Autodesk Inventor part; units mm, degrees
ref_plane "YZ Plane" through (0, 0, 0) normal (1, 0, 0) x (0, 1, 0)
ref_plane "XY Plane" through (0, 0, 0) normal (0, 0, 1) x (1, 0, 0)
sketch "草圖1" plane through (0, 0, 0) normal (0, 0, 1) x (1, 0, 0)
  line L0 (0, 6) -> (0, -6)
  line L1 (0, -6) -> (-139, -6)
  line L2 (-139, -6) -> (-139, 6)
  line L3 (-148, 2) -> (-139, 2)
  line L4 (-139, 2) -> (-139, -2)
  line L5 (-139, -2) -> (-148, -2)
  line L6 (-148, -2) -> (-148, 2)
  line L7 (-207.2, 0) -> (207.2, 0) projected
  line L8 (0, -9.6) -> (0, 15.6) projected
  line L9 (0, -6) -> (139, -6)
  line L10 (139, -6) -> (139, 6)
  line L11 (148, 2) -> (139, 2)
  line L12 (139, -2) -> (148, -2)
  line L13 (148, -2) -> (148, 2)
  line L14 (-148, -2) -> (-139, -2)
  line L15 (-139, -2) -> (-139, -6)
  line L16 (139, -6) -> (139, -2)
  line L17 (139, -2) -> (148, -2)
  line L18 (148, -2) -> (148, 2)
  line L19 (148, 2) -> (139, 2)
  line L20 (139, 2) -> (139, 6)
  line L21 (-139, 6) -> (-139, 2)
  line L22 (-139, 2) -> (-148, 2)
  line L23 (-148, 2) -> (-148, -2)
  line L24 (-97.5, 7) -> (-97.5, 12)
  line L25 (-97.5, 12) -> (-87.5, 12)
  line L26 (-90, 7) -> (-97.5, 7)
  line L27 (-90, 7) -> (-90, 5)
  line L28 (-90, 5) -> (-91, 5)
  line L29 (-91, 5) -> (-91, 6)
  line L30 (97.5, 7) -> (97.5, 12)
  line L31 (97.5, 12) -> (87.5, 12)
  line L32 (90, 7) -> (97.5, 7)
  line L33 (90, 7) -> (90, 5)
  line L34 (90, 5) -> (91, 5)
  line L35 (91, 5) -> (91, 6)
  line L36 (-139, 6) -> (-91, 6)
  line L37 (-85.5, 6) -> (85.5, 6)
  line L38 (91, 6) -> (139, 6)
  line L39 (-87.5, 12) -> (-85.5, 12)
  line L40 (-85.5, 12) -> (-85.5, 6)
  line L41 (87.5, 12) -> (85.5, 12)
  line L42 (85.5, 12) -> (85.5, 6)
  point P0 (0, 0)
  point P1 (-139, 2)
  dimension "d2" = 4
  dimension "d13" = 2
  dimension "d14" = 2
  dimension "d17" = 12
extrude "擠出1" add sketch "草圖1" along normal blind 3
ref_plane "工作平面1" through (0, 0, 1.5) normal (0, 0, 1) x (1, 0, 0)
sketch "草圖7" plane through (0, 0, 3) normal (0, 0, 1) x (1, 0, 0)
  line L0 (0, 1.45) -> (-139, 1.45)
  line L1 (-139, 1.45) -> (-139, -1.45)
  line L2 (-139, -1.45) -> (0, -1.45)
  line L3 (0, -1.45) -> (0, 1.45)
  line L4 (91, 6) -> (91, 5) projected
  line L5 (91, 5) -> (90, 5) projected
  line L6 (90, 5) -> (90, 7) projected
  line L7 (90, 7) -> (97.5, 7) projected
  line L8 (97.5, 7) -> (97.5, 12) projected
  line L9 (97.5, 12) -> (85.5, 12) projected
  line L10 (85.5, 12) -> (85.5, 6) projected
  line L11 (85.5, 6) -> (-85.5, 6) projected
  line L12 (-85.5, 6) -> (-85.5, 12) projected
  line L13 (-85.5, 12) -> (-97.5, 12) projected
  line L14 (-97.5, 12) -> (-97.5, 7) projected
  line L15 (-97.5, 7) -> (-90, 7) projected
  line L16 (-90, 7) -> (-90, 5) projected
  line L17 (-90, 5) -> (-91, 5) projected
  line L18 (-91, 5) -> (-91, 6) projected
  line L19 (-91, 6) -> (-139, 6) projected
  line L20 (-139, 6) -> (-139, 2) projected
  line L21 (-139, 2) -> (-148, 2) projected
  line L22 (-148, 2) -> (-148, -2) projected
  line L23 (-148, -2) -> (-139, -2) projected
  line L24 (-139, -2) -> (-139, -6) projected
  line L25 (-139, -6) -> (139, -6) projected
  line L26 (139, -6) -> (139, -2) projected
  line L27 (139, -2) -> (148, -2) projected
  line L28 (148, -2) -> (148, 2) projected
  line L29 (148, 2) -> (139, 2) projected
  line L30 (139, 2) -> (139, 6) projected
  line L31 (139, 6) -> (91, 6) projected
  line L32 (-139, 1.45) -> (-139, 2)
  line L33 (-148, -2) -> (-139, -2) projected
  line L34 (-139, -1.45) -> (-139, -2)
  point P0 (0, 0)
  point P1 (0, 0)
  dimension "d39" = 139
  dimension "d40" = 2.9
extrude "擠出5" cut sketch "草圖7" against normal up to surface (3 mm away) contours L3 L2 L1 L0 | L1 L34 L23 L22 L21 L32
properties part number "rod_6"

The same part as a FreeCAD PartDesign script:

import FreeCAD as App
import Part
import Sketcher

V = App.Vector

doc = App.newDocument("Part")
body = doc.addObject("PartDesign::Body", "Body")

# Sketch on XY plane
sketch1 = doc.addObject("Sketcher::SketchObject", "Sketch")
body.addObject(sketch1)
sketch1.AttachmentSupport = (doc.XY_Plane, [""])
sketch1.MapMode = "FlatFace"
sketch1.addGeometry(Part.LineSegment(V(85.5, 6, 0), V(-85.5, 6, 0)), False)
sketch1.addGeometry(Part.LineSegment(V(-85.5, 6, 0), V(-85.5, 12, 0)), False)
sketch1.addGeometry(Part.LineSegment(V(-85.5, 12, 0), V(-97.5, 12, 0)), False)
sketch1.addGeometry(Part.LineSegment(V(-97.5, 12, 0), V(-97.5, 7, 0)), False)
sketch1.addGeometry(Part.LineSegment(V(-97.5, 7, 0), V(-90, 7, 0)), False)
sketch1.addGeometry(Part.LineSegment(V(-90, 7, 0), V(-90, 5, 0)), False)
sketch1.addGeometry(Part.LineSegment(V(-90, 5, 0), V(-91, 5, 0)), False)
sketch1.addGeometry(Part.LineSegment(V(-91, 5, 0), V(-91, 6, 0)), False)
sketch1.addGeometry(Part.LineSegment(V(-91, 6, 0), V(-139, 6, 0)), False)
sketch1.addGeometry(Part.LineSegment(V(-139, 6, 0), V(-139, 2, 0)), False)
sketch1.addGeometry(Part.LineSegment(V(-139, 2, 0), V(-148, 2, 0)), False)
sketch1.addGeometry(Part.LineSegment(V(-148, 2, 0), V(-148, -2, 0)), False)
sketch1.addGeometry(Part.LineSegment(V(-148, -2, 0), V(-139, -2, 0)), False)
sketch1.addGeometry(Part.LineSegment(V(-139, -2, 0), V(-139, -6, 0)), False)
sketch1.addGeometry(Part.LineSegment(V(-139, -6, 0), V(139, -6, 0)), False)
sketch1.addGeometry(Part.LineSegment(V(139, -6, 0), V(139, -2, 0)), False)
sketch1.addGeometry(Part.LineSegment(V(139, -2, 0), V(148, -2, 0)), False)
sketch1.addGeometry(Part.LineSegment(V(148, -2, 0), V(148, 2, 0)), False)
sketch1.addGeometry(Part.LineSegment(V(148, 2, 0), V(139, 2, 0)), False)
sketch1.addGeometry(Part.LineSegment(V(139, 2, 0), V(139, 6, 0)), False)
sketch1.addGeometry(Part.LineSegment(V(139, 6, 0), V(91, 6, 0)), False)
sketch1.addGeometry(Part.LineSegment(V(91, 6, 0), V(91, 5, 0)), False)
sketch1.addGeometry(Part.LineSegment(V(91, 5, 0), V(90, 5, 0)), False)
sketch1.addGeometry(Part.LineSegment(V(90, 5, 0), V(90, 7, 0)), False)
sketch1.addGeometry(Part.LineSegment(V(90, 7, 0), V(97.5, 7, 0)), False)
sketch1.addGeometry(Part.LineSegment(V(97.5, 7, 0), V(97.5, 12, 0)), False)
sketch1.addGeometry(Part.LineSegment(V(97.5, 12, 0), V(85.5, 12, 0)), False)
sketch1.addGeometry(Part.LineSegment(V(85.5, 12, 0), V(85.5, 6, 0)), False)
sketch1.addConstraint(Sketcher.Constraint("Coincident", 0, 2, 1, 1))
sketch1.addConstraint(Sketcher.Constraint("Coincident", 1, 2, 2, 1))
sketch1.addConstraint(Sketcher.Constraint("Coincident", 2, 2, 3, 1))
sketch1.addConstraint(Sketcher.Constraint("Coincident", 3, 2, 4, 1))
sketch1.addConstraint(Sketcher.Constraint("Coincident", 4, 2, 5, 1))
sketch1.addConstraint(Sketcher.Constraint("Coincident", 5, 2, 6, 1))
sketch1.addConstraint(Sketcher.Constraint("Coincident", 6, 2, 7, 1))
sketch1.addConstraint(Sketcher.Constraint("Coincident", 7, 2, 8, 1))
sketch1.addConstraint(Sketcher.Constraint("Coincident", 8, 2, 9, 1))
sketch1.addConstraint(Sketcher.Constraint("Coincident", 9, 2, 10, 1))
sketch1.addConstraint(Sketcher.Constraint("Coincident", 10, 2, 11, 1))
sketch1.addConstraint(Sketcher.Constraint("Coincident", 11, 2, 12, 1))
sketch1.addConstraint(Sketcher.Constraint("Coincident", 12, 2, 13, 1))
sketch1.addConstraint(Sketcher.Constraint("Coincident", 13, 2, 14, 1))
sketch1.addConstraint(Sketcher.Constraint("Coincident", 14, 2, 15, 1))
sketch1.addConstraint(Sketcher.Constraint("Coincident", 15, 2, 16, 1))
sketch1.addConstraint(Sketcher.Constraint("Coincident", 16, 2, 17, 1))
sketch1.addConstraint(Sketcher.Constraint("Coincident", 17, 2, 18, 1))
sketch1.addConstraint(Sketcher.Constraint("Coincident", 18, 2, 19, 1))
sketch1.addConstraint(Sketcher.Constraint("Coincident", 19, 2, 20, 1))
sketch1.addConstraint(Sketcher.Constraint("Coincident", 20, 2, 21, 1))
sketch1.addConstraint(Sketcher.Constraint("Coincident", 21, 2, 22, 1))
sketch1.addConstraint(Sketcher.Constraint("Coincident", 22, 2, 23, 1))
sketch1.addConstraint(Sketcher.Constraint("Coincident", 23, 2, 24, 1))
sketch1.addConstraint(Sketcher.Constraint("Coincident", 24, 2, 25, 1))
sketch1.addConstraint(Sketcher.Constraint("Coincident", 25, 2, 26, 1))
sketch1.addConstraint(Sketcher.Constraint("Coincident", 26, 2, 27, 1))
sketch1.addConstraint(Sketcher.Constraint("Coincident", 27, 2, 0, 1))
sketch1.addConstraint(Sketcher.Constraint("Horizontal", 0))
sketch1.addConstraint(Sketcher.Constraint("Vertical", 1))
sketch1.addConstraint(Sketcher.Constraint("Horizontal", 2))
sketch1.addConstraint(Sketcher.Constraint("Vertical", 3))
sketch1.addConstraint(Sketcher.Constraint("Horizontal", 4))
sketch1.addConstraint(Sketcher.Constraint("Vertical", 5))
sketch1.addConstraint(Sketcher.Constraint("Horizontal", 6))
sketch1.addConstraint(Sketcher.Constraint("Vertical", 7))
sketch1.addConstraint(Sketcher.Constraint("Horizontal", 8))
sketch1.addConstraint(Sketcher.Constraint("Vertical", 9))
sketch1.addConstraint(Sketcher.Constraint("Horizontal", 10))
sketch1.addConstraint(Sketcher.Constraint("Vertical", 11))
sketch1.addConstraint(Sketcher.Constraint("Horizontal", 12))
sketch1.addConstraint(Sketcher.Constraint("Vertical", 13))
sketch1.addConstraint(Sketcher.Constraint("Horizontal", 14))
sketch1.addConstraint(Sketcher.Constraint("Vertical", 15))
sketch1.addConstraint(Sketcher.Constraint("Horizontal", 16))
sketch1.addConstraint(Sketcher.Constraint("Vertical", 17))
sketch1.addConstraint(Sketcher.Constraint("Horizontal", 18))
sketch1.addConstraint(Sketcher.Constraint("Vertical", 19))
sketch1.addConstraint(Sketcher.Constraint("Horizontal", 20))
sketch1.addConstraint(Sketcher.Constraint("Vertical", 21))
sketch1.addConstraint(Sketcher.Constraint("Horizontal", 22))
sketch1.addConstraint(Sketcher.Constraint("Vertical", 23))
sketch1.addConstraint(Sketcher.Constraint("Horizontal", 24))
sketch1.addConstraint(Sketcher.Constraint("Vertical", 25))
sketch1.addConstraint(Sketcher.Constraint("Horizontal", 26))
sketch1.addConstraint(Sketcher.Constraint("Vertical", 27))
sketch1.addConstraint(Sketcher.Constraint("Symmetric", 8, 2, 14, 2, -1, 1))
sketch1.addConstraint(Sketcher.Constraint("Symmetric", 10, 2, 16, 2, -1, 1))
sketch1.addConstraint(Sketcher.Constraint("Symmetric", 12, 2, 18, 2, -1, 1))
sketch1.addConstraint(Sketcher.Constraint("Symmetric", 12, 2, 15, 2, -2))
sketch1.addConstraint(Sketcher.Constraint("Symmetric", 7, 2, 20, 2, -2))
sketch1.addConstraint(Sketcher.Constraint("Symmetric", 5, 2, 22, 2, -2))
sketch1.addConstraint(Sketcher.Constraint("Symmetric", 3, 2, 24, 2, -2))
sketch1.addConstraint(Sketcher.Constraint("Symmetric", 1, 2, 26, 2, -2))
sketch1.addConstraint(Sketcher.Constraint("Horizontal", 0, 2, 7, 2))
sketch1.addConstraint(Sketcher.Constraint("Equal", 22, 7))
sketch1.addConstraint(Sketcher.Constraint("Equal", 9, 11))
sketch1.addConstraint(Sketcher.Constraint("DistanceX", 2, 2, 2, 1, 12.0))
sketch1.addConstraint(Sketcher.Constraint("DistanceY", 5, 2, 5, 1, 2.0))
sketch1.addConstraint(Sketcher.Constraint("DistanceY", 9, 2, 9, 1, 4.0))
sketch1.addConstraint(Sketcher.Constraint("DistanceY", -1, 1, 1, 2, 12.0))
sketch1.addConstraint(Sketcher.Constraint("DistanceX", 0, 2, 0, 1, 171.0))
sketch1.addConstraint(Sketcher.Constraint("DistanceX", 6, 2, 6, 1, 1.0))
sketch1.addConstraint(Sketcher.Constraint("DistanceX", 8, 2, 8, 1, 48.0))
sketch1.addConstraint(Sketcher.Constraint("DistanceX", 10, 2, 10, 1, 9.0))
sketch1.addConstraint(Sketcher.Constraint("DistanceX", 14, 1, 14, 2, 278.0))
pad1 = doc.addObject("PartDesign::Pad", "Pad")
body.addObject(pad1)
pad1.Profile = sketch1
pad1.Length = 3

# Sketch on XY plane
sketch2 = doc.addObject("Sketcher::SketchObject", "Sketch001")
body.addObject(sketch2)
sketch2.AttachmentSupport = (doc.XY_Plane, [""])
sketch2.MapMode = "FlatFace"
sketch2.AttachmentOffset = App.Placement(V(0, 0, 3), App.Rotation())
sketch2.addGeometry(Part.LineSegment(V(0, -1.4, 0), V(0, 1.4, 0)), False)
sketch2.addGeometry(Part.LineSegment(V(0, 1.4, 0), V(-139, 1.4, 0)), False)
sketch2.addGeometry(Part.LineSegment(V(-139, 1.4, 0), V(-139, 2, 0)), False)
sketch2.addGeometry(Part.LineSegment(V(-139, 2, 0), V(-148, 2, 0)), False)
sketch2.addGeometry(Part.LineSegment(V(-148, 2, 0), V(-148, -2, 0)), False)
sketch2.addGeometry(Part.LineSegment(V(-148, -2, 0), V(-139, -2, 0)), False)
sketch2.addGeometry(Part.LineSegment(V(-139, -2, 0), V(-139, -1.4, 0)), False)
sketch2.addGeometry(Part.LineSegment(V(-139, -1.4, 0), V(0, -1.4, 0)), False)
sketch2.addConstraint(Sketcher.Constraint("Coincident", 0, 2, 1, 1))
sketch2.addConstraint(Sketcher.Constraint("Coincident", 1, 2, 2, 1))
sketch2.addConstraint(Sketcher.Constraint("Coincident", 2, 2, 3, 1))
sketch2.addConstraint(Sketcher.Constraint("Coincident", 3, 2, 4, 1))
sketch2.addConstraint(Sketcher.Constraint("Coincident", 4, 2, 5, 1))
sketch2.addConstraint(Sketcher.Constraint("Coincident", 5, 2, 6, 1))
sketch2.addConstraint(Sketcher.Constraint("Coincident", 6, 2, 7, 1))
sketch2.addConstraint(Sketcher.Constraint("Coincident", 7, 2, 0, 1))
sketch2.addConstraint(Sketcher.Constraint("Vertical", 0))
sketch2.addConstraint(Sketcher.Constraint("Horizontal", 1))
sketch2.addConstraint(Sketcher.Constraint("Vertical", 2))
sketch2.addConstraint(Sketcher.Constraint("Horizontal", 3))
sketch2.addConstraint(Sketcher.Constraint("Vertical", 4))
sketch2.addConstraint(Sketcher.Constraint("Horizontal", 5))
sketch2.addConstraint(Sketcher.Constraint("Vertical", 6))
sketch2.addConstraint(Sketcher.Constraint("Horizontal", 7))
sketch2.addConstraint(Sketcher.Constraint("Symmetric", 0, 2, 7, 2, -1, 1))
sketch2.addConstraint(Sketcher.Constraint("Symmetric", 2, 2, 5, 2, -1))
sketch2.addConstraint(Sketcher.Constraint("DistanceX", 1, 2, 1, 1, 139.0))
sketch2.addConstraint(Sketcher.Constraint("DistanceY", 0, 1, 0, 2, 2.9))
sketch2.addConstraint(Sketcher.Constraint("DistanceX", 3, 2, 3, 1, 9.0))
sketch2.addConstraint(Sketcher.Constraint("DistanceY", 4, 2, 4, 1, 4.0))
pocket1 = doc.addObject("PartDesign::Pocket", "Pocket")
body.addObject(pocket1)
pocket1.Profile = sketch2
pocket1.Length = 3

doc.recompute()
